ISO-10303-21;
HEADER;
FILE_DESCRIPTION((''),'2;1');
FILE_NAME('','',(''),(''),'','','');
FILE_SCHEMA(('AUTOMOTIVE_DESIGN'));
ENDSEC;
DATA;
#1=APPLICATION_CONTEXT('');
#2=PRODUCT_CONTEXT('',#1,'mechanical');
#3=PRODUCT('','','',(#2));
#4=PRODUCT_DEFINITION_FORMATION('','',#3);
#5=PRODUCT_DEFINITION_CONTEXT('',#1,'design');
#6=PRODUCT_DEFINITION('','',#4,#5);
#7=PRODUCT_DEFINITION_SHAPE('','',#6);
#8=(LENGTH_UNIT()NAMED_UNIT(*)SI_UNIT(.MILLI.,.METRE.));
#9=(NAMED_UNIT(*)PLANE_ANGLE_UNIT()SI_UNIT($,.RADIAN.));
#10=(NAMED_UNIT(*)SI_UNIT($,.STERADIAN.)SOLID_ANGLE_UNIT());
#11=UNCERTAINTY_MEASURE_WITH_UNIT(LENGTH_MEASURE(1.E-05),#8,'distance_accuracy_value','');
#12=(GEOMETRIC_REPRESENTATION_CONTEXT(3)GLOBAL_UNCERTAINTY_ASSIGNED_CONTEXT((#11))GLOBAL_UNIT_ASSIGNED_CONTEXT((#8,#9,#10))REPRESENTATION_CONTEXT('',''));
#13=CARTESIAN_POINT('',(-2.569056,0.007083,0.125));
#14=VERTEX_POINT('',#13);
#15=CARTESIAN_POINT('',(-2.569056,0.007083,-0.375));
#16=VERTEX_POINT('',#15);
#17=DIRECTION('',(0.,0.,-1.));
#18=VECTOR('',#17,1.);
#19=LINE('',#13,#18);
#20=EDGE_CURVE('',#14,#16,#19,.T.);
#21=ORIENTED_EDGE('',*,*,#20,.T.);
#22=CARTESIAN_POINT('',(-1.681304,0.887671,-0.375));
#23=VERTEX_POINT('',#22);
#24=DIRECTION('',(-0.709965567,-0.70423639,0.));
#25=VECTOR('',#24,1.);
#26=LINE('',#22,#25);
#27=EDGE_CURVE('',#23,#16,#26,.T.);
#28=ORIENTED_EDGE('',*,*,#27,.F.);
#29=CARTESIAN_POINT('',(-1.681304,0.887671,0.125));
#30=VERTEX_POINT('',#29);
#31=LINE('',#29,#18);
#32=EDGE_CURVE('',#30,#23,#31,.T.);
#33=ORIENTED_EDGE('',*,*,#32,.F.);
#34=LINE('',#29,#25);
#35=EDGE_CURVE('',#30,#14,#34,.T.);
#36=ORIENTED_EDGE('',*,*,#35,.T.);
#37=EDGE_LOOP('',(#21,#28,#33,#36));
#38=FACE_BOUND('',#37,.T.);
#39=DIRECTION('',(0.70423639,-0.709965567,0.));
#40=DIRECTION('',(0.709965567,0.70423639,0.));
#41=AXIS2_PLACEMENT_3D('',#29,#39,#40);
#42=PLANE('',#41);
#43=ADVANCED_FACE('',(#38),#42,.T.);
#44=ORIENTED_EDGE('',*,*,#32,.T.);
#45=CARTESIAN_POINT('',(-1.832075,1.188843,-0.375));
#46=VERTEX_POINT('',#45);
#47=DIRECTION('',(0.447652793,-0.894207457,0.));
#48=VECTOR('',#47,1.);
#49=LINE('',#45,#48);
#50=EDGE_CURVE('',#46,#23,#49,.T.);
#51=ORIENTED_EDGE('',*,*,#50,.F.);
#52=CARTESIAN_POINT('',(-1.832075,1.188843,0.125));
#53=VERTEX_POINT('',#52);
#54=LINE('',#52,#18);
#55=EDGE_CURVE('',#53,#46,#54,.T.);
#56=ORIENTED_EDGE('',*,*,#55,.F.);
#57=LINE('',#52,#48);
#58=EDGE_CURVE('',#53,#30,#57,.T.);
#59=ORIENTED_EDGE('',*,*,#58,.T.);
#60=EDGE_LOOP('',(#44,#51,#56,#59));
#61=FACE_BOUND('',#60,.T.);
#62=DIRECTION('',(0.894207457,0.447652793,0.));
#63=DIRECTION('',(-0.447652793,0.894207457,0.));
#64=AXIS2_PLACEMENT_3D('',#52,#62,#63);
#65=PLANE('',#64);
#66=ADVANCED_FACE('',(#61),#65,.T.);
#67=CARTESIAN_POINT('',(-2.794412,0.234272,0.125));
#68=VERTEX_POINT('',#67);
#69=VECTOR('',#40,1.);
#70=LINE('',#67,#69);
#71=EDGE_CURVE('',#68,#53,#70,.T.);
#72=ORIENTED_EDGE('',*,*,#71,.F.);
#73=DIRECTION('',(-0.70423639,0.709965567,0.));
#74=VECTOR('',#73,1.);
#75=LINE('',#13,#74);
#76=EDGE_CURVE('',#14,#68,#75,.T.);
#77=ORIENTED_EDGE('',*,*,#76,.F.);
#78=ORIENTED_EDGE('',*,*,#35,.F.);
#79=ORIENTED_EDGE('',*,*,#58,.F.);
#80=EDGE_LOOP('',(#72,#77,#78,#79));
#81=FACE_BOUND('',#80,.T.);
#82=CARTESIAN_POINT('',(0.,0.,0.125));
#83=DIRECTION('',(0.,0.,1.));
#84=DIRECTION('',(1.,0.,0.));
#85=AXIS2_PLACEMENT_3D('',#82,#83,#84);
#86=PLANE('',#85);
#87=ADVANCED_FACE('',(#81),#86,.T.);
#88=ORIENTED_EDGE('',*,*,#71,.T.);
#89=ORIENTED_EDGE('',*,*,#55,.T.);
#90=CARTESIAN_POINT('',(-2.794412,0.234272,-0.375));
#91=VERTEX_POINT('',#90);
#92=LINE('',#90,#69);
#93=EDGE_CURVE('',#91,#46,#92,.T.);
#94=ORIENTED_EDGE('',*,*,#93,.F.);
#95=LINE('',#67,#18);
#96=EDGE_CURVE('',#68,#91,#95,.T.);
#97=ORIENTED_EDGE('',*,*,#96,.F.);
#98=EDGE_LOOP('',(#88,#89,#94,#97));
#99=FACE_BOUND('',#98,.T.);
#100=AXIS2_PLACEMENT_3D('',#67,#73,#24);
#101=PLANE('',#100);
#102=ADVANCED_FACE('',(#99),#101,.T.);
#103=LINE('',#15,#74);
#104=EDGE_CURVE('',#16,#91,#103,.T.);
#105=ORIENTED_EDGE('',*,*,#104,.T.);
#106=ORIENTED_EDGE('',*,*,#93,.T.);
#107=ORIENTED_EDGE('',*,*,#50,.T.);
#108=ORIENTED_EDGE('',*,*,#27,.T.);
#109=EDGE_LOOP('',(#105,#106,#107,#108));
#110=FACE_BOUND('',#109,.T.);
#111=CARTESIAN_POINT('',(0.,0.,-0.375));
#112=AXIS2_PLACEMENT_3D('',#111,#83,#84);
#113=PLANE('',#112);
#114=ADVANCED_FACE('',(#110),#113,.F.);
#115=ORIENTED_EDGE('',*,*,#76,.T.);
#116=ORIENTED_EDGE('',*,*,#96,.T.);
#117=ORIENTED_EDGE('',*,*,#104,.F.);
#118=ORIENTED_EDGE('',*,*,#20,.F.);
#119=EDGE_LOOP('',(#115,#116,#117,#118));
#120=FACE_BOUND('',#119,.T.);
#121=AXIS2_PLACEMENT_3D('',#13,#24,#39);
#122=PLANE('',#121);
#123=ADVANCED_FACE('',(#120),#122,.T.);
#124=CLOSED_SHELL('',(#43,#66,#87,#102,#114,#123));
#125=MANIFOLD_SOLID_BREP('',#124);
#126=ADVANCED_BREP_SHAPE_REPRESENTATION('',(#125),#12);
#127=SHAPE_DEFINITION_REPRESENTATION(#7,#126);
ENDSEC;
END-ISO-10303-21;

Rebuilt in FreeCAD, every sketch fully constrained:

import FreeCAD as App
import Part
import Sketcher

V = App.Vector
Q = App.Units.Quantity

doc = App.newDocument("Part")
body = doc.addObject("PartDesign::Body", "Body")

sketch1 = body.newObject("Sketcher::SketchObject", "Sketch")
sketch1.AttachmentSupport = (doc.getObject("XY_Plane"), [""])
sketch1.MapMode = "FlatFace"
sketch1.AttachmentOffset = App.Placement(V(0, 0, -0.375), App.Rotation())
sketch1.addGeometry([
    Part.LineSegment(V(-1.83, 1.19, 0), V(-1.68, 0.89, 0)),
    Part.LineSegment(V(-1.68, 0.89, 0), V(-2.57, 0.01, 0)),
    Part.LineSegment(V(-2.57, 0.01, 0), V(-2.79, 0.23, 0)),
    Part.LineSegment(V(-2.79, 0.23, 0), V(-1.83, 1.19, 0)),
], False)
sketch1.addConstraint([
    Sketcher.Constraint("Coincident", 0, 2, 1, 1),
    Sketcher.Constraint("Coincident", 1, 2, 2, 1),
    Sketcher.Constraint("Coincident", 2, 2, 3, 1),
    Sketcher.Constraint("Coincident", 3, 2, 0, 1),
    Sketcher.Constraint("Perpendicular", 1, 2),
    Sketcher.Constraint("Perpendicular", 2, 3),
    Sketcher.Constraint("Distance", 2, Q("0.32 mm")),
    Sketcher.Constraint("DistanceY", 2, 2, 0, 2, Q("0.653399 mm")),
    Sketcher.Constraint("Distance", 3, Q("1.355469 mm")),
    Sketcher.Constraint("DistanceY", -1, 1, 0, 2, Q("0.887671 mm")),
    Sketcher.Constraint("DistanceX", 2, 2, -1, 1, Q("2.794412 mm")),
    Sketcher.Constraint("DistanceX", 1, 2, 0, 2, Q("0.887752 mm")),
])
pad1 = body.newObject("PartDesign::Pad", "Pad")
pad1.Profile = sketch1
pad1.Length = 0.5

doc.recompute()
